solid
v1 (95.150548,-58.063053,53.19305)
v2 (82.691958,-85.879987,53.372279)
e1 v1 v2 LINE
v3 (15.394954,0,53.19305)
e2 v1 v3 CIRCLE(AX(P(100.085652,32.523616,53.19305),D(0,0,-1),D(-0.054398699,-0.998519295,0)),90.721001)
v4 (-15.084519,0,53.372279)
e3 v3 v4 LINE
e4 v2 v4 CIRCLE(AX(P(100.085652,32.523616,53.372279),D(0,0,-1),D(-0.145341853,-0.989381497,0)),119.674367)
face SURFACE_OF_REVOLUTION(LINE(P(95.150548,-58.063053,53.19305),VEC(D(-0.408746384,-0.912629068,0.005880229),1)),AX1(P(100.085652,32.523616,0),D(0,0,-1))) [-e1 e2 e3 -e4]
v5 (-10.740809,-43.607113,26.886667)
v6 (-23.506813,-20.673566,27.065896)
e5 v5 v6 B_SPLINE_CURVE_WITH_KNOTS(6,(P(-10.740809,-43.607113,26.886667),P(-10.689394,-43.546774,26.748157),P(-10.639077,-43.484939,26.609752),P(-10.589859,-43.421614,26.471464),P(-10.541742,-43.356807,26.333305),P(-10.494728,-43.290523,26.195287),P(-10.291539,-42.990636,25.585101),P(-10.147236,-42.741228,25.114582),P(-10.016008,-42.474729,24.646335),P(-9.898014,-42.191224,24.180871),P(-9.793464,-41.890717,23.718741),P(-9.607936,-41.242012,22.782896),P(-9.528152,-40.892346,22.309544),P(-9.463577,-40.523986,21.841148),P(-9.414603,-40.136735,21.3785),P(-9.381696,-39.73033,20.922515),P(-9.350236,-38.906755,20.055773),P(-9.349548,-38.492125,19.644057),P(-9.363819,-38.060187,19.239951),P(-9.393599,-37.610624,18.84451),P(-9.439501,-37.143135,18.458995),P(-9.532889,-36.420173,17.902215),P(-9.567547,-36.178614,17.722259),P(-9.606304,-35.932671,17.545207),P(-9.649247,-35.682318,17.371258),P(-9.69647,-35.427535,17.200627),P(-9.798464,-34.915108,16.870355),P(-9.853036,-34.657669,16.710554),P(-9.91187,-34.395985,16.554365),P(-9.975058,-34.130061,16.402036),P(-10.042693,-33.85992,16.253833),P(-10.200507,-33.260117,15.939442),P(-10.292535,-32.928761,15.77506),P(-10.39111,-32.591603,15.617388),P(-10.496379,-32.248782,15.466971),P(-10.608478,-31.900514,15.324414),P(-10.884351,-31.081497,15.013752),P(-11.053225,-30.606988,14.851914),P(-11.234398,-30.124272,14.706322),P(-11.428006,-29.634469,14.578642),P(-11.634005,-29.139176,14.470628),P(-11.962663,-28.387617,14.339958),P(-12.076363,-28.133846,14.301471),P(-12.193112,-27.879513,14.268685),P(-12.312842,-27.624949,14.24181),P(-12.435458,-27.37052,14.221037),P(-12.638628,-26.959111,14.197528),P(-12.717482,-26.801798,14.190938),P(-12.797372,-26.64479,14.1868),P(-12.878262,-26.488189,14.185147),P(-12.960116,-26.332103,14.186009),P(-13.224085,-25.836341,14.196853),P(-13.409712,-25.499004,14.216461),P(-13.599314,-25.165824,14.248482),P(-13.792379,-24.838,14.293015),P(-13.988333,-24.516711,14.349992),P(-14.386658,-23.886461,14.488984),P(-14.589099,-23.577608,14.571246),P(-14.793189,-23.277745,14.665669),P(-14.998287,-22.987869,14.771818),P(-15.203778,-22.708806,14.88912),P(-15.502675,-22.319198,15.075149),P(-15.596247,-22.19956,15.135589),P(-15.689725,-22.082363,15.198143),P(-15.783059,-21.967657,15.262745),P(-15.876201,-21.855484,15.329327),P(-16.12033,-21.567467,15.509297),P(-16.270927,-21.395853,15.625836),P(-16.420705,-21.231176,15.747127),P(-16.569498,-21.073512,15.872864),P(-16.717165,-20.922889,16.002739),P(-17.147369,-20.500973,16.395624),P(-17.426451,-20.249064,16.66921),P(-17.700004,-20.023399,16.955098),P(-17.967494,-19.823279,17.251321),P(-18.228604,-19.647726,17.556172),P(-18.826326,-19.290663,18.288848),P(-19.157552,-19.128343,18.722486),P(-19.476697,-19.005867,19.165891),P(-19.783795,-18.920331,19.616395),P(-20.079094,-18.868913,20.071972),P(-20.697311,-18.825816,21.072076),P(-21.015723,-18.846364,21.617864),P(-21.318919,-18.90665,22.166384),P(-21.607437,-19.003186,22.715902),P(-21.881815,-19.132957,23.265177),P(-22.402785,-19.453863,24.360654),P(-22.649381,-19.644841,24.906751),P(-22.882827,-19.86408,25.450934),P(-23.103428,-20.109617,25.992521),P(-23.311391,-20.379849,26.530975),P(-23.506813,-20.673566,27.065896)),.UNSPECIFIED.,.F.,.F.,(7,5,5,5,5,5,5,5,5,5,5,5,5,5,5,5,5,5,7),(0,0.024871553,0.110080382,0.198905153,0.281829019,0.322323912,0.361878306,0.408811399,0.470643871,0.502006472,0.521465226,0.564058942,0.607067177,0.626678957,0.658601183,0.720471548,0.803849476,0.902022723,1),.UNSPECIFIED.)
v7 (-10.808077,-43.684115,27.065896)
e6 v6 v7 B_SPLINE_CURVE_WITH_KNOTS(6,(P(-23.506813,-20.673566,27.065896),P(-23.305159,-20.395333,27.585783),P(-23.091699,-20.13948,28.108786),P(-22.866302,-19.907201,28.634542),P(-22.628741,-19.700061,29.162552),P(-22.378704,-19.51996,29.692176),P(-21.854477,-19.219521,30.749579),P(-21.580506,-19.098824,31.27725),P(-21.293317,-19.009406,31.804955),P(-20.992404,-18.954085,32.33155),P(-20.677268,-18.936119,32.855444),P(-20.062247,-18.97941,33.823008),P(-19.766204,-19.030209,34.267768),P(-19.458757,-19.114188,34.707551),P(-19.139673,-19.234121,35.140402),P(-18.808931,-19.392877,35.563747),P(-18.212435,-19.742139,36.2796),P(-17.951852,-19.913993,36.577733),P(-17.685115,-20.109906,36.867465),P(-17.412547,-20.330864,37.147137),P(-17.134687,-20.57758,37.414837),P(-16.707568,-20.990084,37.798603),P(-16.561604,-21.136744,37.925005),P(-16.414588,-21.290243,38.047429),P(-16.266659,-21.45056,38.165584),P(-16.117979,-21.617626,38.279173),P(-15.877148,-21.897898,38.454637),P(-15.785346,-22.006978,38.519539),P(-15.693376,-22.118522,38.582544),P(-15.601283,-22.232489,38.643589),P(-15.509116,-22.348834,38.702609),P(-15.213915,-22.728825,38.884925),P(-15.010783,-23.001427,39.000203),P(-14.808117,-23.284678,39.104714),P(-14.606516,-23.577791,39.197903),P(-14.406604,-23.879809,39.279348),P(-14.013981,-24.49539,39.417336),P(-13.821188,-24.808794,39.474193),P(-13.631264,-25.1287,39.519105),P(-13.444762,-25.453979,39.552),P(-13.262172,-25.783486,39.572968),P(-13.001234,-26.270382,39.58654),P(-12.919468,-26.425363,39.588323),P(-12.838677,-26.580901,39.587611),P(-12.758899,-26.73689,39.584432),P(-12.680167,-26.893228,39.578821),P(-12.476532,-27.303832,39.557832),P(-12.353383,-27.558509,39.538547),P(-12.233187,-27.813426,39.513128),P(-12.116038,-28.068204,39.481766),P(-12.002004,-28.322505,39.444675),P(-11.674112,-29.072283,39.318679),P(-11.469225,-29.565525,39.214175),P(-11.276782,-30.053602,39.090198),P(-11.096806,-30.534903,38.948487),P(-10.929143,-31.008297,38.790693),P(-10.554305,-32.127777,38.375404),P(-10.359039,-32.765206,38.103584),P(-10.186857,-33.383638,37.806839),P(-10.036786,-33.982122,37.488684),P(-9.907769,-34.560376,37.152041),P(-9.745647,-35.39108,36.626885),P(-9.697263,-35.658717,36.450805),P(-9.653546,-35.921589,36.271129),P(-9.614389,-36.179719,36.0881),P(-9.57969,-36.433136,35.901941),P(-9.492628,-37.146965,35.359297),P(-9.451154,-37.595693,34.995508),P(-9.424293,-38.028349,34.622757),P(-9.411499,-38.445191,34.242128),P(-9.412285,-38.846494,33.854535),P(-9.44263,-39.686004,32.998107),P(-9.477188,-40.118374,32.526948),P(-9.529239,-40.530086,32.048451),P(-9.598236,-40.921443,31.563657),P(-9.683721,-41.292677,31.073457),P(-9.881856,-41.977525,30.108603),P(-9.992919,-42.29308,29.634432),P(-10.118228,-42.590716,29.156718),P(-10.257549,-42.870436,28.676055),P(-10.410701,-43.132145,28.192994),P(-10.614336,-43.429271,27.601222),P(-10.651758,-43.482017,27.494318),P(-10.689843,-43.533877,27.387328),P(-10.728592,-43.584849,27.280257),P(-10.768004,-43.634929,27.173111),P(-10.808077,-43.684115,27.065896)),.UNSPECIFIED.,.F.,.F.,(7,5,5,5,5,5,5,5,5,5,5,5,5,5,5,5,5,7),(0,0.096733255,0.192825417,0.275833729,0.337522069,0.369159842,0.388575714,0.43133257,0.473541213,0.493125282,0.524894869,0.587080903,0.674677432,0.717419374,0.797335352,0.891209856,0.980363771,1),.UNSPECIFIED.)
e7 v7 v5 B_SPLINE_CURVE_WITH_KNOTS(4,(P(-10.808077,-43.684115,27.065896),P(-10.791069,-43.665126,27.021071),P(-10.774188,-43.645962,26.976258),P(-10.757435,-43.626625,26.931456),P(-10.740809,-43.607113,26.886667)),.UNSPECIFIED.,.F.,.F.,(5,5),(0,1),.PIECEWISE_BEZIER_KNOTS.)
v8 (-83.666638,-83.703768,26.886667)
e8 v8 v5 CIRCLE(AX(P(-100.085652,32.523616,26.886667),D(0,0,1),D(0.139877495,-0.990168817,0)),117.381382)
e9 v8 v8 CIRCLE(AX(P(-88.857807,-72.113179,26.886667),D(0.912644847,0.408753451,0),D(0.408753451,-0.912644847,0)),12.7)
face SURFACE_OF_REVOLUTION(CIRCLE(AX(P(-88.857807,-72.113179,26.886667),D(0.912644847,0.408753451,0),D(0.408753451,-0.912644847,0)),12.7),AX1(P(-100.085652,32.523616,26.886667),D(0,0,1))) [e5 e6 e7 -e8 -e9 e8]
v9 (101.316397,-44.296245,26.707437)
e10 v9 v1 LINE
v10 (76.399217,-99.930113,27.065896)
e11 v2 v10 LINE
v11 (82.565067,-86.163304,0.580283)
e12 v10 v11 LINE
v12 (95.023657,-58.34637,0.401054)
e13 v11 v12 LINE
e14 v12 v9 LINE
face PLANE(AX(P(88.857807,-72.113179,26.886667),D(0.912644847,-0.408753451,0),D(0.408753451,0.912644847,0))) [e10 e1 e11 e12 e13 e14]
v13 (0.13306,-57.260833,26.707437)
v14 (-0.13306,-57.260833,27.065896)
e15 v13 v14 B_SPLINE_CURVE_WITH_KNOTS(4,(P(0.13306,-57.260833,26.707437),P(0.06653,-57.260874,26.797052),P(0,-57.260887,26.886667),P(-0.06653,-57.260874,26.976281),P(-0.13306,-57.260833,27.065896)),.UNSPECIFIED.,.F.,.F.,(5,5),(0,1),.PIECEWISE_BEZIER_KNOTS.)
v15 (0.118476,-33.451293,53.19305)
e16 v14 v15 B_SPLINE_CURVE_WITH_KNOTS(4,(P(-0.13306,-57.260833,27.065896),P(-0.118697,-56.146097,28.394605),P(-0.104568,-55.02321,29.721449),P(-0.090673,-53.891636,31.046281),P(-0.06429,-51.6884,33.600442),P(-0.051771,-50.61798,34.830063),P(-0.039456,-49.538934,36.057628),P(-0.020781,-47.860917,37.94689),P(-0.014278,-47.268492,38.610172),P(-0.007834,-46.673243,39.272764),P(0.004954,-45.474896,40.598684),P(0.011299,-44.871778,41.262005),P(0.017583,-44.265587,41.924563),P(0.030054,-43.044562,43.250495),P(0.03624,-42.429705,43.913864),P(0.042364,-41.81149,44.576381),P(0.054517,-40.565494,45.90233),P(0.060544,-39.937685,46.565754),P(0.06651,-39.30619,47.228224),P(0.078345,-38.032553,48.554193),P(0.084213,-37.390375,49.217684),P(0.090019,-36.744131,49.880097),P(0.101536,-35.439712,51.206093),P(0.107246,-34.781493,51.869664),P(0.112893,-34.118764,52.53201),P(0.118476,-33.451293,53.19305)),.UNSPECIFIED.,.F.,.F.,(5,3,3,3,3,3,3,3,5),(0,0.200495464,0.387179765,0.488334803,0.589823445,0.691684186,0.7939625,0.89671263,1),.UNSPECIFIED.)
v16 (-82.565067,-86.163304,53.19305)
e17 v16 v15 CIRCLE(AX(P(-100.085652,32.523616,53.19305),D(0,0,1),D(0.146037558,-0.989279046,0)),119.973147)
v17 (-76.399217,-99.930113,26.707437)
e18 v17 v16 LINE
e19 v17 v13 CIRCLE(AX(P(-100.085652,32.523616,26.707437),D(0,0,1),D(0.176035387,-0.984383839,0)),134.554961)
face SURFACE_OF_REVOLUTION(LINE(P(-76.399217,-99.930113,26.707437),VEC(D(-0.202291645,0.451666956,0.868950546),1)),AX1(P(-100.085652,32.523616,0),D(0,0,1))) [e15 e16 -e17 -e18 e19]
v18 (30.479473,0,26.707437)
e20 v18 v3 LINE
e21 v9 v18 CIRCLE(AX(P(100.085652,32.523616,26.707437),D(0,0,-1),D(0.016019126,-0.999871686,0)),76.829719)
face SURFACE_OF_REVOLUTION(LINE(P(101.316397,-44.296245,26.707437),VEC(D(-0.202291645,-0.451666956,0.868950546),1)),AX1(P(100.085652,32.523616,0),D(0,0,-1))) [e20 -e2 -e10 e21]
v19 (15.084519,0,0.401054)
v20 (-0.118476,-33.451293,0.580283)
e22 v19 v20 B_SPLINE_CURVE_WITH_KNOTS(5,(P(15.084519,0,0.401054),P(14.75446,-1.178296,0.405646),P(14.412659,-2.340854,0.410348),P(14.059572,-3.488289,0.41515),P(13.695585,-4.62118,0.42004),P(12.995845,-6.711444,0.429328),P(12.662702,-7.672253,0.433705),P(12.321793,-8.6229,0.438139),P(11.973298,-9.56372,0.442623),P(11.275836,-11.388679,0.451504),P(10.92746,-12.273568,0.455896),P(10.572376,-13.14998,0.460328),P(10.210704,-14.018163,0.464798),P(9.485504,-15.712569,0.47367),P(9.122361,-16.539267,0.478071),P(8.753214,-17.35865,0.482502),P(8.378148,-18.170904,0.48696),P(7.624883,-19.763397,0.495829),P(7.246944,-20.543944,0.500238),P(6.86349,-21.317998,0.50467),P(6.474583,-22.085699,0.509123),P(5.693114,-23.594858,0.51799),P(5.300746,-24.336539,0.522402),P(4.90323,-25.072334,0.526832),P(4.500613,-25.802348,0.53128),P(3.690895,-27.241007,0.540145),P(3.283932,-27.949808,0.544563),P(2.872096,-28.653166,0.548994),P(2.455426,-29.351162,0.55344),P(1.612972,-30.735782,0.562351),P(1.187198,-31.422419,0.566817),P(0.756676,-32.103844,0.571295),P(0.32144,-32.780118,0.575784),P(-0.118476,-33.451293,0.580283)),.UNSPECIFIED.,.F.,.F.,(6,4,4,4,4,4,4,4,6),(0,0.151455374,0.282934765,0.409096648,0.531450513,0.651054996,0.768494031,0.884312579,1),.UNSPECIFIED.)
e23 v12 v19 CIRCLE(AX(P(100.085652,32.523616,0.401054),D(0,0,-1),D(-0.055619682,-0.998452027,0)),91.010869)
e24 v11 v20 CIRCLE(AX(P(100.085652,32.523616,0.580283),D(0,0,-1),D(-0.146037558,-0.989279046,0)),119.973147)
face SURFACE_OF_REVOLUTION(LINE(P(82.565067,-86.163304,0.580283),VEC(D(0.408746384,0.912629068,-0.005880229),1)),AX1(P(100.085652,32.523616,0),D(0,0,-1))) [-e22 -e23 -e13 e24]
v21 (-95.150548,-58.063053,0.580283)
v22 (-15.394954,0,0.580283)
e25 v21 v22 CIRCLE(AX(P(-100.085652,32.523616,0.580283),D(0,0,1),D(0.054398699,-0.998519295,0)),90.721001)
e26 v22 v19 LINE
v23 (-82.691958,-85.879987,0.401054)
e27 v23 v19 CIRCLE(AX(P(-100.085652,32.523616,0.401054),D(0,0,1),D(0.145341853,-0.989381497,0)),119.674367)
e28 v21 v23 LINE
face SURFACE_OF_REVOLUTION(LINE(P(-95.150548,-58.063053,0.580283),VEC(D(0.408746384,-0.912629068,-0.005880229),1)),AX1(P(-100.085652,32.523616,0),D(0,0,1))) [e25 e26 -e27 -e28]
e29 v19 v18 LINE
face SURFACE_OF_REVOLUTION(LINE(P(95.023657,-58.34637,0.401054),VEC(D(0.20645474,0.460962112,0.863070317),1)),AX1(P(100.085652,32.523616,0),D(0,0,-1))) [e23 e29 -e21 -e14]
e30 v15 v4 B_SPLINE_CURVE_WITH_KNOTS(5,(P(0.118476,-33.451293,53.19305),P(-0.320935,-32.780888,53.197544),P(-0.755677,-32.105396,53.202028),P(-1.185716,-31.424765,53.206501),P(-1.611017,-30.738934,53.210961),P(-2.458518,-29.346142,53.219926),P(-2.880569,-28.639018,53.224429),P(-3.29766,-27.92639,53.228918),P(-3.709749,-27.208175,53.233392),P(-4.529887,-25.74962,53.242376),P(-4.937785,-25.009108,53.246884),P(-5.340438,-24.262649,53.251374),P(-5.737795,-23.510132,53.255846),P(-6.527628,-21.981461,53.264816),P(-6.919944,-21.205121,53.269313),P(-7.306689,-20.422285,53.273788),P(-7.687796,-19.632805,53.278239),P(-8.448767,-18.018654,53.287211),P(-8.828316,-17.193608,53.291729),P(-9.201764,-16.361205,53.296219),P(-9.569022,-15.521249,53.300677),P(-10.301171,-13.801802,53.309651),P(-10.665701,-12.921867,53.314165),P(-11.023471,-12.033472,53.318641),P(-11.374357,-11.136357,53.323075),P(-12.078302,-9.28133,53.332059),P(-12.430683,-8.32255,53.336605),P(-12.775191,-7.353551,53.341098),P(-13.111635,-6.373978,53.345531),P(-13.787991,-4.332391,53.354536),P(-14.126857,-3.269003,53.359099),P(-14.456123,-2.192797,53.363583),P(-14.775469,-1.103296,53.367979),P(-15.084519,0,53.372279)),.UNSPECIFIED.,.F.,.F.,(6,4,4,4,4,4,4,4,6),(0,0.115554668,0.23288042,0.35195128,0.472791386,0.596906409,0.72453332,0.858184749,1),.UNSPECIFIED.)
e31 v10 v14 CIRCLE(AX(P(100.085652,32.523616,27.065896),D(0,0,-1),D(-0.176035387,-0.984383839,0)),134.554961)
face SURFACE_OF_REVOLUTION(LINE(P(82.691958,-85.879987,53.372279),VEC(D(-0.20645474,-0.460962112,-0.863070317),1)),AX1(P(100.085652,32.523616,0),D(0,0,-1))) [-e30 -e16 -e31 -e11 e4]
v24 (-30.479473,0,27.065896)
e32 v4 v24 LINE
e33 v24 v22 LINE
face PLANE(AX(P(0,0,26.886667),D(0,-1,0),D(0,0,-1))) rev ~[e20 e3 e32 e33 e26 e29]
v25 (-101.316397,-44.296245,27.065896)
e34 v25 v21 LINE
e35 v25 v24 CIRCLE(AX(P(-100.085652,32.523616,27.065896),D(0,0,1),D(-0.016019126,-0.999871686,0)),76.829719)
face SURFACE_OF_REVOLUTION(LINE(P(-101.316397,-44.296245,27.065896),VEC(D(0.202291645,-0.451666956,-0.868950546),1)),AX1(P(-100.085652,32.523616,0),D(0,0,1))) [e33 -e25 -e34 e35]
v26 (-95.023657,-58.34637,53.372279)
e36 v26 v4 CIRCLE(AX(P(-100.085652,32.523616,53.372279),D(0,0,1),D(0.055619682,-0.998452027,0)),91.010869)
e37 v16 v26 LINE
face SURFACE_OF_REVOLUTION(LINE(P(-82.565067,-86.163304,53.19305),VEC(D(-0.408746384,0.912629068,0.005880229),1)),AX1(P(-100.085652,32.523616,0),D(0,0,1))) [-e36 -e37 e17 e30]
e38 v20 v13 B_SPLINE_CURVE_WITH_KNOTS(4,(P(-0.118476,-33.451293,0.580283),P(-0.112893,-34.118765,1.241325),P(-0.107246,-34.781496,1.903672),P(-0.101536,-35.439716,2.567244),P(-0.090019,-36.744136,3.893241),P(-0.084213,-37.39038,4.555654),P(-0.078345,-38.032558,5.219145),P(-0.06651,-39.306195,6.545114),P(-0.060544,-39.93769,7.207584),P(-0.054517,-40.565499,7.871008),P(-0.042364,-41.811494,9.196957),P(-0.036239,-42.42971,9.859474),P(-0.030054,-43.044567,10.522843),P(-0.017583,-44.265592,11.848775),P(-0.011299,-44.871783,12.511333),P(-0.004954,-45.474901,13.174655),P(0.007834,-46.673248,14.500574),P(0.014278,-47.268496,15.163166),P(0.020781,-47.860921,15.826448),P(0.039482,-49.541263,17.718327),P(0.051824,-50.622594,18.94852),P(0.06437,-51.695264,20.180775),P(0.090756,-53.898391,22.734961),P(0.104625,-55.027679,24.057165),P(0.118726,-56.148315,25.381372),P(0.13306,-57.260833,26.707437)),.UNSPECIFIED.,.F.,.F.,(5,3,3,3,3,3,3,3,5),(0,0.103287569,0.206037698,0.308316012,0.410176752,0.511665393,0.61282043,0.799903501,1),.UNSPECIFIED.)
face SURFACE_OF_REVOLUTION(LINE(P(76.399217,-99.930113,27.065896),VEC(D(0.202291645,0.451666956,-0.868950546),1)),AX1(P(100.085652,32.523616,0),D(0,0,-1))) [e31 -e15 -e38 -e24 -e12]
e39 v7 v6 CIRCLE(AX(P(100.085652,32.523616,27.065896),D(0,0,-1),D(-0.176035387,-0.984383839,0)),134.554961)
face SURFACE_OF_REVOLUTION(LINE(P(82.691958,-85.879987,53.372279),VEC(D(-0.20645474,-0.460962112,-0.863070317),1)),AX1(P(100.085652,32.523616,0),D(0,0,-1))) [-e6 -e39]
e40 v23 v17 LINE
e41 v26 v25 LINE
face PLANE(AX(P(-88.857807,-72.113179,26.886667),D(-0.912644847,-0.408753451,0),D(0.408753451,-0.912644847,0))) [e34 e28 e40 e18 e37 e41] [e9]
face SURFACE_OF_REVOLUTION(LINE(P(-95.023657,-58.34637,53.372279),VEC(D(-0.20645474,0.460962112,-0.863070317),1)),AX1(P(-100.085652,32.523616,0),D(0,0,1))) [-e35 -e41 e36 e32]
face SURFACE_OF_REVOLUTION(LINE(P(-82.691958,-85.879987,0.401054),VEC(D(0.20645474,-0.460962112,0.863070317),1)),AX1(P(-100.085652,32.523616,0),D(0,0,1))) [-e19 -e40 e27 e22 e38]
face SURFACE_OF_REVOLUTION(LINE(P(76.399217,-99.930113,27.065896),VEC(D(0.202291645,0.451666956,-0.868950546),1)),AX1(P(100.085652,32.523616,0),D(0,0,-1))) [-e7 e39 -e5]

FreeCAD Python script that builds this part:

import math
import FreeCAD as App
import Part
import Sketcher
from FreeCAD import Vector
Q = App.Units.Quantity

doc = App.newDocument("Part")
body = doc.addObject("PartDesign::Body", "Body")

# Sketch on XZ plane
sketch1 = body.newObject("Sketcher::SketchObject", "Sketch")
sketch1.AttachmentSupport = (doc.getObject("XZ_Plane"), [""])
sketch1.MapMode = "FlatFace"
sketch1.addGeometry([
    Part.LineSegment(Vector(-30, 27, 0), Vector(-15, 1, 0)),  # 0
    Part.LineSegment(Vector(-15, 1, 0), Vector(15, 0, 0)),  # 1
    Part.LineSegment(Vector(15, 0, 0), Vector(30, 27, 0)),  # 2
    Part.LineSegment(Vector(30, 27, 0), Vector(15, 53, 0)),  # 3
    Part.LineSegment(Vector(15, 53, 0), Vector(-15, 53, 0)),  # 4
    Part.LineSegment(Vector(-15, 53, 0), Vector(-30, 27, 0)),  # 5
    Part.Circle(Vector(0, 27, 0), Vector(0, 0, 1), 13),  # 6
], False)
sketch1.addConstraint([
    Sketcher.Constraint("Coincident", 0, 2, 1, 1),
    Sketcher.Constraint("Coincident", 1, 2, 2, 1),
    Sketcher.Constraint("Coincident", 2, 2, 3, 1),
    Sketcher.Constraint("Coincident", 3, 2, 4, 1),
    Sketcher.Constraint("Coincident", 4, 2, 5, 1),
    Sketcher.Constraint("Coincident", 5, 2, 0, 1),
    Sketcher.Constraint("PointOnObject", 6, 3, -2),
    Sketcher.Constraint("Parallel", 0, 3),
    Sketcher.Constraint("Parallel", 1, 4),
    Sketcher.Constraint("Parallel", 2, 5),
    Sketcher.Constraint("Equal", 0, 1),
    Sketcher.Constraint("Equal", 1, 2),
    Sketcher.Constraint("Equal", 2, 3),
    Sketcher.Constraint("Diameter", 6, Q("1 in")),
    Sketcher.Constraint("Distance", 0, Q("1.2 in")),
    Sketcher.Constraint("DistanceX", -1, 1, 1, 2, 15.084519),
    Sketcher.Constraint("DistanceY", -1, 1, 3, 2, 53.19305),
    Sketcher.Constraint("DistanceX", 4, 2, -1, 1, 15.084519),
    Sketcher.Constraint("DistanceY", -1, 1, 4, 2, 53.372279),
    Sketcher.Constraint("DistanceY", 2, 2, 6, 3, 0.179229),
    Sketcher.Constraint("DistanceX", 3, 2, 2, 2, 15.084519),
])

# Sketch on XY plane
sketch2 = body.newObject("Sketcher::SketchObject", "Sketch001")
sketch2.AttachmentSupport = (doc.getObject("XY_Plane"), [""])
sketch2.MapMode = "FlatFace"
sketch2.addGeometry(Part.ArcOfCircle(Part.Circle(Vector(-100, 33, 0), Vector(0, 0, 1), 105), math.radians(-84), math.radians(-18)), False)
sketch2.addConstraint([
    Sketcher.Constraint("Coincident", 0, 2, -1, 1),
    Sketcher.Constraint("Radius", 0, 105.237462),
    Sketcher.Constraint("DistanceY", 0, 1, -1, 1, 72.113179),
    Sketcher.Constraint("DistanceX", 0, 3, -1, 1, 100.085652),
])
doc.recompute()

additivepipe = body.newObject("PartDesign::AdditivePipe", "AdditivePipe")
additivepipe.Profile = sketch1
additivepipe.Spine = (sketch2, ["Edge1"])

# Sketch on XZ plane
sketch3 = body.newObject("Sketcher::SketchObject", "Sketch002")
sketch3.AttachmentSupport = (doc.getObject("XZ_Plane"), [""])
sketch3.MapMode = "FlatFace"
sketch3.addGeometry([
    Part.LineSegment(Vector(-30, 27, 0), Vector(-15, 1, 0)),  # 0
    Part.LineSegment(Vector(-15, 1, 0), Vector(15, 0, 0)),  # 1
    Part.LineSegment(Vector(15, 0, 0), Vector(30, 27, 0)),  # 2
    Part.LineSegment(Vector(30, 27, 0), Vector(15, 53, 0)),  # 3
    Part.LineSegment(Vector(15, 53, 0), Vector(-15, 53, 0)),  # 4
    Part.LineSegment(Vector(-15, 53, 0), Vector(-30, 27, 0)),  # 5
], False)
sketch3.addConstraint([
    Sketcher.Constraint("Coincident", 0, 2, 1, 1),
    Sketcher.Constraint("Coincident", 1, 2, 2, 1),
    Sketcher.Constraint("Coincident", 2, 2, 3, 1),
    Sketcher.Constraint("Coincident", 3, 2, 4, 1),
    Sketcher.Constraint("Coincident", 4, 2, 5, 1),
    Sketcher.Constraint("Coincident", 5, 2, 0, 1),
    Sketcher.Constraint("Parallel", 0, 3),
    Sketcher.Constraint("Parallel", 1, 4),
    Sketcher.Constraint("Parallel", 2, 5),
    Sketcher.Constraint("Equal", 0, 1),
    Sketcher.Constraint("Equal", 1, 2),
    Sketcher.Constraint("Equal", 2, 3),
    Sketcher.Constraint("Distance", 0, Q("1.2 in")),
    Sketcher.Constraint("DistanceX", -1, 1, 1, 2, 15.084519),
    Sketcher.Constraint("DistanceY", -1, 1, 3, 2, 53.19305),
    Sketcher.Constraint("DistanceX", 4, 2, -1, 1, 15.084519),
    Sketcher.Constraint("DistanceY", -1, 1, 4, 2, 53.372279),
    Sketcher.Constraint("DistanceX", 3, 2, 2, 2, 15.084519),
])

# Sketch on XY plane
sketch4 = body.newObject("Sketcher::SketchObject", "Sketch003")
sketch4.AttachmentSupport = (doc.getObject("XY_Plane"), [""])
sketch4.MapMode = "FlatFace"
sketch4.addGeometry(Part.ArcOfCircle(Part.Circle(Vector(100, 33, 0), Vector(0, 0, 1), 105), math.radians(-162), math.radians(-96)), False)
sketch4.addConstraint([
    Sketcher.Constraint("Coincident", 0, 1, -1, 1),
    Sketcher.Constraint("Radius", 0, 105.237462),
    Sketcher.Constraint("DistanceY", 0, 2, -1, 1, 72.113179),
    Sketcher.Constraint("DistanceX", -1, 1, 0, 3, 100.085652),
])
doc.recompute()

additivepipe2 = body.newObject("PartDesign::AdditivePipe", "AdditivePipe001")
additivepipe2.Profile = sketch3
additivepipe2.Spine = (sketch4, ["Edge1"])

doc.recompute()
